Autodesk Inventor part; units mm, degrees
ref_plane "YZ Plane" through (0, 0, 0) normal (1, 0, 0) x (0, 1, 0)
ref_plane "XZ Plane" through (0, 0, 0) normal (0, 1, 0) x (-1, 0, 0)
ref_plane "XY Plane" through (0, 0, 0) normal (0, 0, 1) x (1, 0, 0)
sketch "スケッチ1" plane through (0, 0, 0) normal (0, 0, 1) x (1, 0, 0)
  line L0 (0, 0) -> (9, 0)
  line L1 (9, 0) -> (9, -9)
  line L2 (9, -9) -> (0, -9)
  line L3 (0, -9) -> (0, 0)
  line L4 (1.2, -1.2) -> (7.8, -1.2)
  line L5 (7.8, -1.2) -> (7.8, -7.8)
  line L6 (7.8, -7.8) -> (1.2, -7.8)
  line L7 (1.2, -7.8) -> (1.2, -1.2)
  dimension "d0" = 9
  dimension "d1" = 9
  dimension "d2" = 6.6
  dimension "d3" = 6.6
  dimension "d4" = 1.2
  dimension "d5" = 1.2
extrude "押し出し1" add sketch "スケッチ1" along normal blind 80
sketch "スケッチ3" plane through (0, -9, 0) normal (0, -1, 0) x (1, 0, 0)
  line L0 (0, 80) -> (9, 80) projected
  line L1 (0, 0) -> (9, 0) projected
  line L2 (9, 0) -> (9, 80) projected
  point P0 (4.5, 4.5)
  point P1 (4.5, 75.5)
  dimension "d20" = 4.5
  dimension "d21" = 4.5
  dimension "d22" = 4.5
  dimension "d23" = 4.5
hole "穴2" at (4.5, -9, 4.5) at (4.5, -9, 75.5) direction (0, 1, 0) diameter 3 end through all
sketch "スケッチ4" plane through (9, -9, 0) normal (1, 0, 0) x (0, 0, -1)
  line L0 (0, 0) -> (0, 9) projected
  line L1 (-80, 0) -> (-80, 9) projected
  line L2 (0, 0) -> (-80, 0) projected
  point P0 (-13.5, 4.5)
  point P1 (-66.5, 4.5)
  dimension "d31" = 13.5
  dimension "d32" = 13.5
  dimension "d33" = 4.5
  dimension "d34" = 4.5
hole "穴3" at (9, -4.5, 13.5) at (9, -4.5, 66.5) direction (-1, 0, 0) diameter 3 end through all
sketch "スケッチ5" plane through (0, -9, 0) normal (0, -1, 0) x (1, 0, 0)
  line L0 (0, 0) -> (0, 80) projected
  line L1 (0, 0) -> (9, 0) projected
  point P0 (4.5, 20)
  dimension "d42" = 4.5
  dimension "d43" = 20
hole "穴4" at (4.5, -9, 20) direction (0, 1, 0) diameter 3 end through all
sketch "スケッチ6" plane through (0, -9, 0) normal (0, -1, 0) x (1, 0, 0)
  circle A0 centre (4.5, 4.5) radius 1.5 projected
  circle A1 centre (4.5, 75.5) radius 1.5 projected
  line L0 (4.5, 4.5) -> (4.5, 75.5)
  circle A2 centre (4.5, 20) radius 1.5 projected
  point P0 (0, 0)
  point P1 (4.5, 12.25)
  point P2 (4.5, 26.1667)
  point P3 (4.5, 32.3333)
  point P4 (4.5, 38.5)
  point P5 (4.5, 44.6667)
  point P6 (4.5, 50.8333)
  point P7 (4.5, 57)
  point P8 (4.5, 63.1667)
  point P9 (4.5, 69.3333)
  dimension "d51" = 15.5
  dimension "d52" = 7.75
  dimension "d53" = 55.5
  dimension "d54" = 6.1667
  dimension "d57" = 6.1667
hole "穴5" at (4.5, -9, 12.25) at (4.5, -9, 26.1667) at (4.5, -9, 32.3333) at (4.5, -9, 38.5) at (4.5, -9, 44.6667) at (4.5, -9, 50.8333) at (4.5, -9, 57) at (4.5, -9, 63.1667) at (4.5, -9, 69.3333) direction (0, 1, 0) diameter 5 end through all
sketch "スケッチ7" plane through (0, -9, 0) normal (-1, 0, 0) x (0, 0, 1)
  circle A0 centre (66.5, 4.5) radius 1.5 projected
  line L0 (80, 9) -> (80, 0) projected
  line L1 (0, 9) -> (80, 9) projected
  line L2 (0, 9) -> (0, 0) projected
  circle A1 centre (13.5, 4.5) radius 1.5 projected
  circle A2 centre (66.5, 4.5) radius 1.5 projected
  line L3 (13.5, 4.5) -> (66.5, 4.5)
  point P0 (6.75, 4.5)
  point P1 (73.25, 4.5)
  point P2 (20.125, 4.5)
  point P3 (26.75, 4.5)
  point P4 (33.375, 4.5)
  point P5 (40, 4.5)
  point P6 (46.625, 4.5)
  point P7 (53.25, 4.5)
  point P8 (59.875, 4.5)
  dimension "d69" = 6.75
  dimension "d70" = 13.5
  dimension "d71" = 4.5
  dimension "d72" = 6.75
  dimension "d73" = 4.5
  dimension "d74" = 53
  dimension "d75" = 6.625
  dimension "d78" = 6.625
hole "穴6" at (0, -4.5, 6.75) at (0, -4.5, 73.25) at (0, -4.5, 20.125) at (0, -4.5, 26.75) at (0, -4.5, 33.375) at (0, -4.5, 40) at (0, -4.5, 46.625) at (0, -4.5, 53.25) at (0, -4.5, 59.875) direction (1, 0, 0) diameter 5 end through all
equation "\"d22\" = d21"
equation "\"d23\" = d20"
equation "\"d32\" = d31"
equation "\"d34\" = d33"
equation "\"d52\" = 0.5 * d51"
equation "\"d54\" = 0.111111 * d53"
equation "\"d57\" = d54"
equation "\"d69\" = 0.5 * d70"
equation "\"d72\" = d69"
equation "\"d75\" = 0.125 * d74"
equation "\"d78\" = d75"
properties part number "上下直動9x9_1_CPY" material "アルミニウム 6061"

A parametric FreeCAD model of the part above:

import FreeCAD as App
import Part
import Sketcher


def add_polygon(sketch, points):
    """Adds a closed chain of lines whose ends are joined by coincident constraints."""
    first, n = sketch.GeometryCount, len(points)
    for a, b in zip(points, points[1:] + points[:1]):
        sketch.addGeometry(Part.LineSegment(App.Vector(*a, 0), App.Vector(*b, 0)), False)
    for i in range(n):
        sketch.addConstraint(Sketcher.Constraint("Coincident", first + i, 2, first + (i + 1) % n, 1))

doc = App.newDocument("Part")
body = doc.addObject("PartDesign::Body", "Body")

# Sketch on XY plane
sketch1 = body.newObject("Sketcher::SketchObject", "Sketch")
sketch1.AttachmentSupport = (doc.getObject("XY_Plane"), [""])
sketch1.MapMode = "FlatFace"
add_polygon(sketch1, [(9, 0), (0, 0), (0, -9), (9, -9)])  # lines 0-3
add_polygon(sketch1, [(1.2, -7.8), (1.2, -1.2), (7.8, -1.2), (7.8, -7.8)])  # lines 4-7
sketch1.addConstraint([
    Sketcher.Constraint("Horizontal", 0),
    Sketcher.Constraint("Vertical", 1),
    Sketcher.Constraint("Horizontal", 2),
    Sketcher.Constraint("Vertical", 3),
    Sketcher.Constraint("Vertical", 4),
    Sketcher.Constraint("Horizontal", 5),
    Sketcher.Constraint("Vertical", 6),
    Sketcher.Constraint("Horizontal", 7),
    Sketcher.Constraint("Coincident", 0, 2, -1, 1),
    Sketcher.Constraint("Equal", 2, 1),
    Sketcher.Constraint("Equal", 7, 4),
    Sketcher.Constraint("DistanceX", 0, 2, 0, 1, 9.0),
    Sketcher.Constraint("DistanceX", 5, 1, 5, 2, 6.6),
    Sketcher.Constraint("DistanceX", -1, 1, 4, 2, 1.2),
    Sketcher.Constraint("DistanceY", 4, 2, -1, 1, 1.2),
])
pad1 = body.newObject("PartDesign::Pad", "Pad")
pad1.Profile = sketch1
pad1.Length = 80

# Sketch on XZ plane
sketch2 = body.newObject("Sketcher::SketchObject", "Sketch001")
sketch2.AttachmentSupport = (doc.getObject("XZ_Plane"), [""])
sketch2.MapMode = "FlatFace"
sketch2.AttachmentOffset = App.Placement(App.Vector(0, 0, 9), App.Rotation())
sketch2.addGeometry([
    Part.Circle(App.Vector(4.5, 4.5, 0), App.Vector(0, 0, 1), 1.5),
    Part.Circle(App.Vector(4.5, 75.5, 0), App.Vector(0, 0, 1), 1.5),
], False)
sketch2.addConstraint([
    Sketcher.Constraint("Equal", 0, 1),
    Sketcher.Constraint("Vertical", 0, 3, 1, 3),
    Sketcher.Constraint("Diameter", 0, 3.0),
    Sketcher.Constraint("DistanceY", 0, 3, 1, 3, 71.0),
    Sketcher.Constraint("DistanceX", -1, 1, 0, 3, 4.5),
    Sketcher.Constraint("DistanceY", -1, 1, 0, 3, 4.5),
])
doc.recompute()
hole = body.newObject("PartDesign::Hole", "Hole")
hole.Profile = sketch2
hole.ThreadType = "None"
hole.Diameter = 3
hole.DepthType = "ThroughAll"

# Sketch on YZ plane
sketch3 = body.newObject("Sketcher::SketchObject", "Sketch002")
sketch3.AttachmentSupport = (doc.getObject("YZ_Plane"), [""])
sketch3.MapMode = "FlatFace"
sketch3.AttachmentOffset = App.Placement(App.Vector(0, 0, 9), App.Rotation())
sketch3.addGeometry([
    Part.Circle(App.Vector(-4.5, 13.5, 0), App.Vector(0, 0, 1), 1.5),
    Part.Circle(App.Vector(-4.5, 66.5, 0), App.Vector(0, 0, 1), 1.5),
], False)
sketch3.addConstraint([
    Sketcher.Constraint("Equal", 0, 1),
    Sketcher.Constraint("Vertical", 0, 3, 1, 3),
    Sketcher.Constraint("Diameter", 0, 3.0),
    Sketcher.Constraint("DistanceY", 0, 3, 1, 3, 53.0),
    Sketcher.Constraint("DistanceX", 0, 3, -1, 1, 4.5),
    Sketcher.Constraint("DistanceY", -1, 1, 0, 3, 13.5),
])
doc.recompute()
hole2 = body.newObject("PartDesign::Hole", "Hole001")
hole2.Profile = sketch3
hole2.ThreadType = "None"
hole2.Diameter = 3
hole2.DepthType = "ThroughAll"

# Sketch on XZ plane
sketch4 = body.newObject("Sketcher::SketchObject", "Sketch003")
sketch4.AttachmentSupport = (doc.getObject("XZ_Plane"), [""])
sketch4.MapMode = "FlatFace"
sketch4.AttachmentOffset = App.Placement(App.Vector(0, 0, 9), App.Rotation())
sketch4.addGeometry(Part.Circle(App.Vector(4.5, 20, 0), App.Vector(0, 0, 1), 1.5), False)
sketch4.addConstraint([
    Sketcher.Constraint("Diameter", 0, 3.0),
    Sketcher.Constraint("DistanceY", -1, 1, 0, 3, 20.0),
    Sketcher.Constraint("DistanceX", -1, 1, 0, 3, 4.5),
])
doc.recompute()
hole3 = body.newObject("PartDesign::Hole", "Hole002")
hole3.Profile = sketch4
hole3.ThreadType = "None"
hole3.Diameter = 3
hole3.DepthType = "ThroughAll"

# Sketch on XZ plane
sketch5 = body.newObject("Sketcher::SketchObject", "Sketch004")
sketch5.AttachmentSupport = (doc.getObject("XZ_Plane"), [""])
sketch5.MapMode = "FlatFace"
sketch5.AttachmentOffset = App.Placement(App.Vector(0, 0, 9), App.Rotation())
sketch5.addGeometry([
    Part.Circle(App.Vector(4.5, 12.25, 0), App.Vector(0, 0, 1), 2.5),  # 0
    Part.Circle(App.Vector(4.5, 26.1667, 0), App.Vector(0, 0, 1), 2.5),  # 1
    Part.Circle(App.Vector(4.5, 32.3333, 0), App.Vector(0, 0, 1), 2.5),  # 2
    Part.Circle(App.Vector(4.5, 38.5, 0), App.Vector(0, 0, 1), 2.5),  # 3
    Part.Circle(App.Vector(4.5, 44.6667, 0), App.Vector(0, 0, 1), 2.5),  # 4
    Part.Circle(App.Vector(4.5, 50.8333, 0), App.Vector(0, 0, 1), 2.5),  # 5
    Part.Circle(App.Vector(4.5, 57, 0), App.Vector(0, 0, 1), 2.5),  # 6
    Part.Circle(App.Vector(4.5, 63.1667, 0), App.Vector(0, 0, 1), 2.5),  # 7
    Part.Circle(App.Vector(4.5, 69.3333, 0), App.Vector(0, 0, 1), 2.5),  # 8
], False)
sketch5.addConstraint([
    Sketcher.Constraint("Equal", 0, 1),
    Sketcher.Constraint("Equal", 1, 2),
    Sketcher.Constraint("Equal", 2, 3),
    Sketcher.Constraint("Equal", 3, 4),
    Sketcher.Constraint("Equal", 4, 5),
    Sketcher.Constraint("Equal", 5, 6),
    Sketcher.Constraint("Equal", 6, 7),
    Sketcher.Constraint("Equal", 7, 8),
    Sketcher.Constraint("Vertical", 0, 3, 1, 3),
    Sketcher.Constraint("Vertical", 1, 3, 2, 3),
    Sketcher.Constraint("Vertical", 2, 3, 3, 3),
    Sketcher.Constraint("Vertical", 3, 3, 4, 3),
    Sketcher.Constraint("Vertical", 4, 3, 5, 3),
    Sketcher.Constraint("Vertical", 5, 3, 6, 3),
    Sketcher.Constraint("Vertical", 6, 3, 7, 3),
    Sketcher.Constraint("Vertical", 7, 3, 8, 3),
    Sketcher.Constraint("Diameter", 0, 5.0),
    Sketcher.Constraint("DistanceY", -1, 1, 6, 3, 57.0),
    Sketcher.Constraint("DistanceX", -1, 1, 0, 3, 4.5),
    Sketcher.Constraint("DistanceY", -1, 1, 3, 3, 38.5),
    Sketcher.Constraint("DistanceY", 1, 3, 4, 3, 18.5),
    Sketcher.Constraint("DistanceY", 2, 3, 5, 3, 18.5),
    Sketcher.Constraint("DistanceY", 4, 3, 7, 3, 18.5),
    Sketcher.Constraint("DistanceY", 5, 3, 8, 3, 18.5),
    Sketcher.Constraint("DistanceY", -1, 1, 0, 3, 12.25),
    Sketcher.Constraint("DistanceY", -1, 1, 1, 3, 26.1667),
    Sketcher.Constraint("DistanceY", -1, 1, 2, 3, 32.3333),
])
doc.recompute()
hole4 = body.newObject("PartDesign::Hole", "Hole003")
hole4.Profile = sketch5
hole4.ThreadType = "None"
hole4.Diameter = 5
hole4.DepthType = "ThroughAll"

# Sketch on YZ plane
sketch6 = body.newObject("Sketcher::SketchObject", "Sketch005")
sketch6.AttachmentSupport = (doc.getObject("YZ_Plane"), [""])
sketch6.MapMode = "FlatFace"
sketch6.addGeometry([
    Part.Circle(App.Vector(-4.5, 6.75, 0), App.Vector(0, 0, 1), 2.5),  # 0
    Part.Circle(App.Vector(-4.5, 73.25, 0), App.Vector(0, 0, 1), 2.5),  # 1
    Part.Circle(App.Vector(-4.5, 20.125, 0), App.Vector(0, 0, 1), 2.5),  # 2
    Part.Circle(App.Vector(-4.5, 26.75, 0), App.Vector(0, 0, 1), 2.5),  # 3
    Part.Circle(App.Vector(-4.5, 33.375, 0), App.Vector(0, 0, 1), 2.5),  # 4
    Part.Circle(App.Vector(-4.5, 40, 0), App.Vector(0, 0, 1), 2.5),  # 5
    Part.Circle(App.Vector(-4.5, 46.625, 0), App.Vector(0, 0, 1), 2.5),  # 6
    Part.Circle(App.Vector(-4.5, 53.25, 0), App.Vector(0, 0, 1), 2.5),  # 7
    Part.Circle(App.Vector(-4.5, 59.875, 0), App.Vector(0, 0, 1), 2.5),  # 8
], False)
sketch6.addConstraint([
    Sketcher.Constraint("Equal", 0, 1),
    Sketcher.Constraint("Equal", 1, 2),
    Sketcher.Constraint("Equal", 2, 3),
    Sketcher.Constraint("Equal", 3, 4),
    Sketcher.Constraint("Equal", 4, 5),
    Sketcher.Constraint("Equal", 5, 6),
    Sketcher.Constraint("Equal", 6, 7),
    Sketcher.Constraint("Equal", 7, 8),
    Sketcher.Constraint("Vertical", 0, 3, 1, 3),
    Sketcher.Constraint("Vertical", 1, 3, 2, 3),
    Sketcher.Constraint("Vertical", 2, 3, 3, 3),
    Sketcher.Constraint("Vertical", 3, 3, 4, 3),
    Sketcher.Constraint("Vertical", 4, 3, 5, 3),
    Sketcher.Constraint("Vertical", 5, 3, 6, 3),
    Sketcher.Constraint("Vertical", 6, 3, 7, 3),
    Sketcher.Constraint("Vertical", 7, 3, 8, 3),
    Sketcher.Constraint("Diameter", 0, 5.0),
    Sketcher.Constraint("DistanceY", -1, 1, 5, 3, 40.0),
    Sketcher.Constraint("DistanceY", 0, 3, 3, 3, 20.0),
    Sketcher.Constraint("DistanceY", 7, 3, 1, 3, 20.0),
    Sketcher.Constraint("DistanceX", 0, 3, -1, 1, 4.5),
    Sketcher.Constraint("DistanceY", 0, 3, 1, 3, 66.5),
    Sketcher.Constraint("DistanceY", 2, 3, 6, 3, 26.5),
    Sketcher.Constraint("DistanceY", 4, 3, 8, 3, 26.5),
    Sketcher.Constraint("DistanceY", -1, 1, 0, 3, 6.75),
    Sketcher.Constraint("DistanceY", 2, 3, 4, 3, 13.25),
    Sketcher.Constraint("DistanceY", -1, 1, 2, 3, 20.125),
])
doc.recompute()
hole5 = body.newObject("PartDesign::Hole", "Hole004")
hole5.Profile = sketch6
hole5.ThreadType = "None"
hole5.Diameter = 5
hole5.DepthType = "ThroughAll"
hole5.Reversed = True

doc.recompute()
